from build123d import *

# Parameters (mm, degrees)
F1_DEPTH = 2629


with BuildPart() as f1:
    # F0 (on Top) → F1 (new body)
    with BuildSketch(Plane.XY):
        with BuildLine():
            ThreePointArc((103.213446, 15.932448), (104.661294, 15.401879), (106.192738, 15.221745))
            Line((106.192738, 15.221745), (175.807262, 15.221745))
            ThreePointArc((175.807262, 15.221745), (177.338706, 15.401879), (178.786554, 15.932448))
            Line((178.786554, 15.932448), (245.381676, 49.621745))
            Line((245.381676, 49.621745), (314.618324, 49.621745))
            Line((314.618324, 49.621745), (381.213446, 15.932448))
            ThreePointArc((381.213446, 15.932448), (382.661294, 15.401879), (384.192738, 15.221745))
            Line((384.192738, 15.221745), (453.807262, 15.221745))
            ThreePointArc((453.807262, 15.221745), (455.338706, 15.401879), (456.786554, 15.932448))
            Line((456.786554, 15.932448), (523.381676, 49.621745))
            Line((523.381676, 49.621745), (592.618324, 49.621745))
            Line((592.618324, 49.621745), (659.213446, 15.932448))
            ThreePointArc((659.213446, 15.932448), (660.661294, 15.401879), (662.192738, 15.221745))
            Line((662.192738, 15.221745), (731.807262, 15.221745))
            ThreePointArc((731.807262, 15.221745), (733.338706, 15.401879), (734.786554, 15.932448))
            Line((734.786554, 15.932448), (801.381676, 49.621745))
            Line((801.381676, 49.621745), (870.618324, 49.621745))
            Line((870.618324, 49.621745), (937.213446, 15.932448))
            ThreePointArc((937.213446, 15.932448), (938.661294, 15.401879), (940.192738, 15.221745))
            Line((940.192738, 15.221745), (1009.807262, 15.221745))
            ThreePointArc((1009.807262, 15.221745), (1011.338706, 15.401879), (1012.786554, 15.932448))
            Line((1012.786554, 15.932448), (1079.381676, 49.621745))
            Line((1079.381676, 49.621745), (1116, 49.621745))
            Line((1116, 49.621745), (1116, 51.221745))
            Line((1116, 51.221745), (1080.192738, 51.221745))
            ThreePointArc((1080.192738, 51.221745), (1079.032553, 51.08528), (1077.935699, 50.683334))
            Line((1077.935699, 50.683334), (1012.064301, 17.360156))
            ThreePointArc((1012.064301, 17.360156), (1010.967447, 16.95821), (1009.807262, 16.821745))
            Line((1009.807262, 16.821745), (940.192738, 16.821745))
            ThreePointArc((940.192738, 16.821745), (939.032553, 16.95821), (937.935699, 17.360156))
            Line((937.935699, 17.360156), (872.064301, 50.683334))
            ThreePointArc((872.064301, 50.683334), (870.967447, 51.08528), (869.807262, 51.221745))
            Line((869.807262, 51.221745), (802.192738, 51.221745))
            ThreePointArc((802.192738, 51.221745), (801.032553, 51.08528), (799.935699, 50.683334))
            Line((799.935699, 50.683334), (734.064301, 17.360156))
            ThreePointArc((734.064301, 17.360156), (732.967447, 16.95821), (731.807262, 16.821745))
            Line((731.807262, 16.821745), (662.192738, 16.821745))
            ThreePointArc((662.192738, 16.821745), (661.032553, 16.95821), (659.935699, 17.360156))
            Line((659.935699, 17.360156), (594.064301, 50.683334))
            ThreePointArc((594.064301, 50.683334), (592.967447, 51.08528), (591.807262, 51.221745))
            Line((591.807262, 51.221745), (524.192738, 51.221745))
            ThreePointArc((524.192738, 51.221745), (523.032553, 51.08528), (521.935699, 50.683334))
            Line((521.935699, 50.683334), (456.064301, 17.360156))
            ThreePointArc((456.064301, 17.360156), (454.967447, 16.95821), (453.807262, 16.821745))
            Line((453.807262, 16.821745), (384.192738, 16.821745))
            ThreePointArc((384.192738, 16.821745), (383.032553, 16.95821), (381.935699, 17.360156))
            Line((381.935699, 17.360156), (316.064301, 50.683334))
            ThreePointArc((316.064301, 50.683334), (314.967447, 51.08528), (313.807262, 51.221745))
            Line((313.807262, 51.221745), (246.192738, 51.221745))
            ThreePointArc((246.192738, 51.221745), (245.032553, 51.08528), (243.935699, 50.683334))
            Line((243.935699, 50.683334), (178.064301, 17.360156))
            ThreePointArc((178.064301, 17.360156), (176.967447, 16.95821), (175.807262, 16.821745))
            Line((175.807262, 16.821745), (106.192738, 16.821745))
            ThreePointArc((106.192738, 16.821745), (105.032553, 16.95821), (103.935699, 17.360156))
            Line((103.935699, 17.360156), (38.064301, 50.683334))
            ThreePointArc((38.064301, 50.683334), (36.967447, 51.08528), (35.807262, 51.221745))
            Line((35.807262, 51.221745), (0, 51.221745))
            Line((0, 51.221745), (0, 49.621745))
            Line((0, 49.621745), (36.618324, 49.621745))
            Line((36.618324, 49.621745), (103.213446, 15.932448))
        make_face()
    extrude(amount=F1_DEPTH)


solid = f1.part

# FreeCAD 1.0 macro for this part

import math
import FreeCAD as App
import Part
import Sketcher

V = App.Vector

doc = App.newDocument("Part")
body = doc.addObject("PartDesign::Body", "Body")

# Sketch on XY plane
sketch1 = body.newObject("Sketcher::SketchObject", "Sketch")
sketch1.AttachmentSupport = (doc.getObject("XY_Plane"), [""])
sketch1.MapMode = "FlatFace"
sketch1.addGeometry([
    Part.ArcOfCircle(Part.Circle(V(106.192738, 21.821744, 0), V(0, 0, 1), 6.599999), math.radians(-116.834049), math.radians(-89.999999)),  # 0
    Part.LineSegment(V(106.192738, 15.221745, 0), V(175.807262, 15.221745, 0)),  # 1
    Part.ArcOfCircle(Part.Circle(V(175.807262, 21.821744, 0), V(0, 0, 1), 6.599999), math.radians(-90.000001), math.radians(-63.165951)),  # 2
    Part.LineSegment(V(178.786554, 15.932448, 0), V(245.381676, 49.621745, 0)),  # 3
    Part.LineSegment(V(245.381676, 49.621745, 0), V(314.618324, 49.621745, 0)),  # 4
    Part.LineSegment(V(314.618324, 49.621745, 0), V(381.213446, 15.932448, 0)),  # 5
    Part.ArcOfCircle(Part.Circle(V(384.192738, 21.821744, 0), V(0, 0, 1), 6.599999), math.radians(-116.834049), math.radians(-89.999999)),  # 6
    Part.LineSegment(V(384.192738, 15.221745, 0), V(453.807262, 15.221745, 0)),  # 7
    Part.ArcOfCircle(Part.Circle(V(453.807262, 21.821744, 0), V(0, 0, 1), 6.599999), math.radians(-90.000001), math.radians(-63.165951)),  # 8
    Part.LineSegment(V(456.786554, 15.932448, 0), V(523.381676, 49.621745, 0)),  # 9
    Part.LineSegment(V(523.381676, 49.621745, 0), V(592.618324, 49.621745, 0)),  # 10
    Part.LineSegment(V(592.618324, 49.621745, 0), V(659.213446, 15.932448, 0)),  # 11
    Part.ArcOfCircle(Part.Circle(V(662.192738, 21.821744, 0), V(0, 0, 1), 6.599999), math.radians(-116.834049), math.radians(-89.999999)),  # 12
    Part.LineSegment(V(662.192738, 15.221745, 0), V(731.807262, 15.221745, 0)),  # 13
    Part.ArcOfCircle(Part.Circle(V(731.807262, 21.821744, 0), V(0, 0, 1), 6.599999), math.radians(-90.000001), math.radians(-63.165951)),  # 14
    Part.LineSegment(V(734.786554, 15.932448, 0), V(801.381676, 49.621745, 0)),  # 15
    Part.LineSegment(V(801.381676, 49.621745, 0), V(870.618324, 49.621745, 0)),  # 16
    Part.LineSegment(V(870.618324, 49.621745, 0), V(937.213446, 15.932448, 0)),  # 17
    Part.ArcOfCircle(Part.Circle(V(940.192738, 21.821744, 0), V(0, 0, 1), 6.599999), math.radians(-116.834049), math.radians(-89.999999)),  # 18
    Part.LineSegment(V(940.192738, 15.221745, 0), V(1009.807262, 15.221745, 0)),  # 19
    Part.ArcOfCircle(Part.Circle(V(1009.807262, 21.821744, 0), V(0, 0, 1), 6.599999), math.radians(-90.000001), math.radians(-63.165951)),  # 20
    Part.LineSegment(V(1012.786554, 15.932448, 0), V(1079.381676, 49.621745, 0)),  # 21
    Part.LineSegment(V(1079.381676, 49.621745, 0), V(1116, 49.621745, 0)),  # 22
    Part.LineSegment(V(1116, 49.621745, 0), V(1116, 51.221745, 0)),  # 23
    Part.LineSegment(V(1116, 51.221745, 0), V(1080.192738, 51.221745, 0)),  # 24
    Part.ArcOfCircle(Part.Circle(V(1080.192737, 46.221749, 0), V(0, 0, 1), 4.999996), math.radians(89.999985), math.radians(116.83405)),  # 25
    Part.LineSegment(V(1077.935699, 50.683334, 0), V(1012.064301, 17.360156, 0)),  # 26
    Part.ArcOfCircle(Part.Circle(V(1009.807263, 21.821741, 0), V(0, 0, 1), 4.999996), math.radians(-90.000015), math.radians(-63.16595)),  # 27
    Part.LineSegment(V(1009.807262, 16.821745, 0), V(940.192738, 16.821745, 0)),  # 28
    Part.ArcOfCircle(Part.Circle(V(940.192737, 21.821741, 0), V(0, 0, 1), 4.999996), math.radians(-116.83405), math.radians(-89.999985)),  # 29
    Part.LineSegment(V(937.935699, 17.360156, 0), V(872.064301, 50.683334, 0)),  # 30
    Part.ArcOfCircle(Part.Circle(V(869.807263, 46.221749, 0), V(0, 0, 1), 4.999996), math.radians(63.16595), math.radians(90.000015)),  # 31
    Part.LineSegment(V(869.807262, 51.221745, 0), V(802.192738, 51.221745, 0)),  # 32
    Part.ArcOfCircle(Part.Circle(V(802.192737, 46.221749, 0), V(0, 0, 1), 4.999996), math.radians(89.999985), math.radians(116.83405)),  # 33
    Part.LineSegment(V(799.935699, 50.683334, 0), V(734.064301, 17.360156, 0)),  # 34
    Part.ArcOfCircle(Part.Circle(V(731.807263, 21.821741, 0), V(0, 0, 1), 4.999996), math.radians(-90.000015), math.radians(-63.16595)),  # 35
    Part.LineSegment(V(731.807262, 16.821745, 0), V(662.192738, 16.821745, 0)),  # 36
    Part.ArcOfCircle(Part.Circle(V(662.192737, 21.821741, 0), V(0, 0, 1), 4.999996), math.radians(-116.83405), math.radians(-89.999985)),  # 37
    Part.LineSegment(V(659.935699, 17.360156, 0), V(594.064301, 50.683334, 0)),  # 38
    Part.ArcOfCircle(Part.Circle(V(591.807263, 46.221749, 0), V(0, 0, 1), 4.999996), math.radians(63.16595), math.radians(90.000015)),  # 39
    Part.LineSegment(V(591.807262, 51.221745, 0), V(524.192738, 51.221745, 0)),  # 40
    Part.ArcOfCircle(Part.Circle(V(524.192737, 46.221749, 0), V(0, 0, 1), 4.999996), math.radians(89.999985), math.radians(116.83405)),  # 41
    Part.LineSegment(V(521.935699, 50.683334, 0), V(456.064301, 17.360156, 0)),  # 42
    Part.ArcOfCircle(Part.Circle(V(453.807263, 21.821741, 0), V(0, 0, 1), 4.999996), math.radians(-90.000015), math.radians(-63.16595)),  # 43
    Part.LineSegment(V(453.807262, 16.821745, 0), V(384.192738, 16.821745, 0)),  # 44
    Part.ArcOfCircle(Part.Circle(V(384.192737, 21.821741, 0), V(0, 0, 1), 4.999996), math.radians(-116.83405), math.radians(-89.999985)),  # 45
    Part.LineSegment(V(381.935699, 17.360156, 0), V(316.064301, 50.683334, 0)),  # 46
    Part.ArcOfCircle(Part.Circle(V(313.807263, 46.221749, 0), V(0, 0, 1), 4.999996), math.radians(63.16595), math.radians(90.000015)),  # 47
    Part.LineSegment(V(313.807262, 51.221745, 0), V(246.192738, 51.221745, 0)),  # 48
    Part.ArcOfCircle(Part.Circle(V(246.192737, 46.221749, 0), V(0, 0, 1), 4.999996), math.radians(89.999985), math.radians(116.83405)),  # 49
    Part.LineSegment(V(243.935699, 50.683334, 0), V(178.064301, 17.360156, 0)),  # 50
    Part.ArcOfCircle(Part.Circle(V(175.807263, 21.821741, 0), V(0, 0, 1), 4.999996), math.radians(-90.000015), math.radians(-63.16595)),  # 51
    Part.LineSegment(V(175.807262, 16.821745, 0), V(106.192738, 16.821745, 0)),  # 52
    Part.ArcOfCircle(Part.Circle(V(106.192737, 21.821741, 0), V(0, 0, 1), 4.999996), math.radians(-116.83405), math.radians(-89.999985)),  # 53
    Part.LineSegment(V(103.935699, 17.360156, 0), V(38.064301, 50.683334, 0)),  # 54
    Part.ArcOfCircle(Part.Circle(V(35.807263, 46.221749, 0), V(0, 0, 1), 4.999996), math.radians(63.16595), math.radians(90.000015)),  # 55
    Part.LineSegment(V(35.807262, 51.221745, 0), V(0, 51.221745, 0)),  # 56
    Part.LineSegment(V(0, 51.221745, 0), V(0, 49.621745, 0)),  # 57
    Part.LineSegment(V(0, 49.621745, 0), V(36.618324, 49.621745, 0)),  # 58
    Part.LineSegment(V(36.618324, 49.621745, 0), V(103.213446, 15.932448, 0)),  # 59
], False)
sketch1.addConstraint([
    Sketcher.Constraint("Coincident", 0, 2, 1, 1),
    Sketcher.Constraint("Coincident", 1, 2, 2, 1),
    Sketcher.Constraint("Coincident", 2, 2, 3, 1),
    Sketcher.Constraint("Coincident", 3, 2, 4, 1),
    Sketcher.Constraint("Coincident", 4, 2, 5, 1),
    Sketcher.Constraint("Coincident", 5, 2, 6, 1),
    Sketcher.Constraint("Coincident", 6, 2, 7, 1),
    Sketcher.Constraint("Coincident", 7, 2, 8, 1),
    Sketcher.Constraint("Coincident", 8, 2, 9, 1),
    Sketcher.Constraint("Coincident", 9, 2, 10, 1),
    Sketcher.Constraint("Coincident", 10, 2, 11, 1),
    Sketcher.Constraint("Coincident", 11, 2, 12, 1),
    Sketcher.Constraint("Coincident", 12, 2, 13, 1),
    Sketcher.Constraint("Coincident", 13, 2, 14, 1),
    Sketcher.Constraint("Coincident", 14, 2, 15, 1),
    Sketcher.Constraint("Coincident", 15, 2, 16, 1),
    Sketcher.Constraint("Coincident", 16, 2, 17, 1),
    Sketcher.Constraint("Coincident", 17, 2, 18, 1),
    Sketcher.Constraint("Coincident", 18, 2, 19, 1),
    Sketcher.Constraint("Coincident", 19, 2, 20, 1),
    Sketcher.Constraint("Coincident", 20, 2, 21, 1),
    Sketcher.Constraint("Coincident", 21, 2, 22, 1),
    Sketcher.Constraint("Coincident", 22, 2, 23, 1),
    Sketcher.Constraint("Coincident", 23, 2, 24, 1),
    Sketcher.Constraint("Coincident", 24, 2, 25, 1),
    Sketcher.Constraint("Coincident", 25, 2, 26, 1),
    Sketcher.Constraint("Coincident", 26, 2, 27, 2),
    Sketcher.Constraint("Coincident", 27, 1, 28, 1),
    Sketcher.Constraint("Coincident", 28, 2, 29, 2),
    Sketcher.Constraint("Coincident", 29, 1, 30, 1),
    Sketcher.Constraint("Coincident", 30, 2, 31, 1),
    Sketcher.Constraint("Coincident", 31, 2, 32, 1),
    Sketcher.Constraint("Coincident", 32, 2, 33, 1),
    Sketcher.Constraint("Coincident", 33, 2, 34, 1),
    Sketcher.Constraint("Coincident", 34, 2, 35, 2),
    Sketcher.Constraint("Coincident", 35, 1, 36, 1),
    Sketcher.Constraint("Coincident", 36, 2, 37, 2),
    Sketcher.Constraint("Coincident", 37, 1, 38, 1),
    Sketcher.Constraint("Coincident", 38, 2, 39, 1),
    Sketcher.Constraint("Coincident", 39, 2, 40, 1),
    Sketcher.Constraint("Coincident", 40, 2, 41, 1),
    Sketcher.Constraint("Coincident", 41, 2, 42, 1),
    Sketcher.Constraint("Coincident", 42, 2, 43, 2),
    Sketcher.Constraint("Coincident", 43, 1, 44, 1),
    Sketcher.Constraint("Coincident", 44, 2, 45, 2),
    Sketcher.Constraint("Coincident", 45, 1, 46, 1),
    Sketcher.Constraint("Coincident", 46, 2, 47, 1),
    Sketcher.Constraint("Coincident", 47, 2, 48, 1),
    Sketcher.Constraint("Coincident", 48, 2, 49, 1),
    Sketcher.Constraint("Coincident", 49, 2, 50, 1),
    Sketcher.Constraint("Coincident", 50, 2, 51, 2),
    Sketcher.Constraint("Coincident", 51, 1, 52, 1),
    Sketcher.Constraint("Coincident", 52, 2, 53, 2),
    Sketcher.Constraint("Coincident", 53, 1, 54, 1),
    Sketcher.Constraint("Coincident", 54, 2, 55, 1),
    Sketcher.Constraint("Coincident", 55, 2, 56, 1),
    Sketcher.Constraint("Coincident", 56, 2, 57, 1),
    Sketcher.Constraint("Coincident", 57, 2, 58, 1),
    Sketcher.Constraint("Coincident", 58, 2, 59, 1),
    Sketcher.Constraint("Coincident", 59, 2, 0, 1),
    Sketcher.Constraint("Horizontal", 1),
    Sketcher.Constraint("Horizontal", 4),
    Sketcher.Constraint("Horizontal", 7),
    Sketcher.Constraint("Horizontal", 10),
    Sketcher.Constraint("Horizontal", 13),
    Sketcher.Constraint("Horizontal", 16),
    Sketcher.Constraint("Horizontal", 19),
    Sketcher.Constraint("Horizontal", 22),
    Sketcher.Constraint("Vertical", 23),
    Sketcher.Constraint("Horizontal", 24),
    Sketcher.Constraint("Horizontal", 28),
    Sketcher.Constraint("Horizontal", 32),
    Sketcher.Constraint("Horizontal", 36),
    Sketcher.Constraint("Horizontal", 40),
    Sketcher.Constraint("Horizontal", 44),
    Sketcher.Constraint("Horizontal", 48),
    Sketcher.Constraint("Horizontal", 52),
    Sketcher.Constraint("Horizontal", 56),
    Sketcher.Constraint("Vertical", 57),
    Sketcher.Constraint("Horizontal", 58),
    Sketcher.Constraint("Coincident", 27, 3, 20, 3),
    Sketcher.Constraint("Coincident", 29, 3, 18, 3),
    Sketcher.Constraint("Coincident", 35, 3, 14, 3),
    Sketcher.Constraint("Coincident", 37, 3, 12, 3),
    Sketcher.Constraint("Coincident", 43, 3, 8, 3),
    Sketcher.Constraint("Coincident", 45, 3, 6, 3),
    Sketcher.Constraint("Coincident", 51, 3, 2, 3),
    Sketcher.Constraint("Coincident", 53, 3, 0, 3),
    Sketcher.Constraint("PointOnObject", 56, 2, -2),
    Sketcher.Constraint("Radius", 0, 6.599999),
    Sketcher.Constraint("Radius", 2, 6.599999),
    Sketcher.Constraint("Radius", 6, 6.599999),
    Sketcher.Constraint("Radius", 8, 6.599999),
    Sketcher.Constraint("Radius", 12, 6.599999),
    Sketcher.Constraint("Radius", 14, 6.599999),
    Sketcher.Constraint("Radius", 18, 6.599999),
    Sketcher.Constraint("Radius", 20, 6.599999),
    Sketcher.Constraint("DistanceY", 23, 1, 23, 2, 1.6),
    Sketcher.Constraint("DistanceY", 57, 2, 57, 1, 1.6),
    Sketcher.Constraint("DistanceX", -1, 1, 22, 2, 1116.0),
    Sketcher.Constraint("Radius", 25, 4.999996),
    Sketcher.Constraint("Radius", 27, 4.999996),
    Sketcher.Constraint("Radius", 31, 4.999996),
    Sketcher.Constraint("Radius", 33, 4.999996),
    Sketcher.Constraint("Radius", 35, 4.999996),
    Sketcher.Constraint("Radius", 39, 4.999996),
    Sketcher.Constraint("Radius", 41, 4.999996),
    Sketcher.Constraint("Radius", 43, 4.999996),
    Sketcher.Constraint("Radius", 47, 4.999996),
    Sketcher.Constraint("Radius", 49, 4.999996),
    Sketcher.Constraint("Radius", 51, 4.999996),
    Sketcher.Constraint("Radius", 55, 4.999996),
    Sketcher.Constraint("DistanceX", 10, 1, 10, 2, 69.236648),
    Sketcher.Constraint("DistanceX", 16, 1, 16, 2, 69.236648),
    Sketcher.Constraint("DistanceX", -1, 1, 25, 2, 1077.935699),
    Sketcher.Constraint("DistanceX", -1, 1, 26, 2, 1012.064301),
    Sketcher.Constraint("DistanceX", -1, 1, 29, 1, 937.935699),
    Sketcher.Constraint("DistanceX", -1, 1, 30, 2, 872.064301),
    Sketcher.Constraint("DistanceX", -1, 1, 33, 2, 799.935699),
    Sketcher.Constraint("DistanceX", -1, 1, 34, 2, 734.064301),
    Sketcher.Constraint("DistanceX", -1, 1, 37, 1, 659.935699),
    Sketcher.Constraint("DistanceX", -1, 1, 38, 2, 594.064301),
    Sketcher.Constraint("DistanceX", -1, 1, 41, 2, 521.935699),
    Sketcher.Constraint("DistanceX", -1, 1, 42, 2, 456.064301),
    Sketcher.Constraint("DistanceX", -1, 1, 45, 1, 381.935699),
    Sketcher.Constraint("DistanceX", -1, 1, 46, 2, 316.064301),
    Sketcher.Constraint("DistanceX", -1, 1, 49, 2, 243.935699),
    Sketcher.Constraint("DistanceX", -1, 1, 50, 2, 178.064301),
    Sketcher.Constraint("DistanceX", -1, 1, 53, 1, 103.935699),
    Sketcher.Constraint("DistanceX", -1, 1, 54, 2, 38.064301),
    Sketcher.Constraint("Distance", 26, 73.820561),
    Sketcher.Constraint("Distance", 30, 73.820561),
    Sketcher.Constraint("Distance", 34, 73.820561),
    Sketcher.Constraint("Distance", 38, 73.820561),
    Sketcher.Constraint("Distance", 42, 73.820561),
    Sketcher.Constraint("Distance", 46, 73.820561),
    Sketcher.Constraint("Distance", 50, 73.820561),
    Sketcher.Constraint("Distance", 54, 73.820561),
    Sketcher.Constraint("DistanceX", 1, 1, 1, 2, 69.614524),
    Sketcher.Constraint("DistanceX", 4, 1, 4, 2, 69.236648),
    Sketcher.Constraint("DistanceX", 7, 1, 7, 2, 69.614524),
    Sketcher.Constraint("DistanceX", 13, 1, 13, 2, 69.614524),
    Sketcher.Constraint("DistanceX", 19, 1, 19, 2, 69.614524),
    Sketcher.Constraint("DistanceX", 22, 1, 22, 2, 36.618324),
    Sketcher.Constraint("DistanceX", 24, 2, 24, 1, 35.807262),
    Sketcher.Constraint("DistanceX", 28, 2, 28, 1, 69.614524),
    Sketcher.Constraint("DistanceX", 32, 2, 32, 1, 67.614524),
    Sketcher.Constraint("DistanceX", 36, 2, 36, 1, 69.614524),
    Sketcher.Constraint("DistanceX", 40, 2, 40, 1, 67.614524),
    Sketcher.Constraint("DistanceX", 44, 2, 44, 1, 69.614524),
    Sketcher.Constraint("DistanceX", 48, 2, 48, 1, 67.614524),
    Sketcher.Constraint("DistanceX", 52, 2, 52, 1, 69.614524),
    Sketcher.Constraint("DistanceX", 56, 2, 56, 1, 35.807262),
    Sketcher.Constraint("DistanceX", 58, 1, 58, 2, 36.618324),
    Sketcher.Constraint("DistanceY", -1, 1, 25, 3, 46.221749),
    Sketcher.Constraint("DistanceY", -1, 1, 27, 3, 21.821741),
    Sketcher.Constraint("DistanceY", -1, 1, 31, 3, 46.221749),
    Sketcher.Constraint("DistanceY", -1, 1, 35, 3, 21.821741),
    Sketcher.Constraint("DistanceY", -1, 1, 39, 3, 46.221749),
    Sketcher.Constraint("DistanceY", -1, 1, 43, 3, 21.821741),
    Sketcher.Constraint("DistanceY", -1, 1, 47, 3, 46.221749),
    Sketcher.Constraint("DistanceY", -1, 1, 51, 3, 21.821741),
    Sketcher.Constraint("DistanceY", -1, 1, 55, 3, 46.221749),
    Sketcher.Constraint("DistanceX", -1, 1, 0, 2, 106.192738),
    Sketcher.Constraint("DistanceY", -1, 1, 5, 2, 15.932448),
    Sketcher.Constraint("DistanceX", -1, 1, 6, 2, 384.192738),
    Sketcher.Constraint("DistanceY", -1, 1, 11, 2, 15.932448),
    Sketcher.Constraint("DistanceX", -1, 1, 12, 2, 662.192738),
    Sketcher.Constraint("DistanceY", -1, 1, 17, 2, 15.932448),
    Sketcher.Constraint("DistanceX", -1, 1, 18, 2, 940.192738),
    Sketcher.Constraint("DistanceX", -1, 1, 27, 1, 1009.807262),
    Sketcher.Constraint("DistanceX", -1, 1, 31, 2, 869.807262),
    Sketcher.Constraint("DistanceX", -1, 1, 35, 1, 731.807262),
    Sketcher.Constraint("DistanceX", -1, 1, 39, 2, 591.807262),
    Sketcher.Constraint("DistanceX", -1, 1, 43, 1, 453.807262),
    Sketcher.Constraint("DistanceX", -1, 1, 47, 2, 313.807262),
    Sketcher.Constraint("DistanceX", -1, 1, 51, 1, 175.807262),
    Sketcher.Constraint("DistanceY", -1, 1, 59, 2, 15.932448),
    Sketcher.Constraint("Distance", 3, 74.631622),
    Sketcher.Constraint("Distance", 5, 74.631622),
    Sketcher.Constraint("Distance", 9, 74.631622),
    Sketcher.Constraint("Distance", 11, 74.631622),
    Sketcher.Constraint("Distance", 15, 74.631622),
    Sketcher.Constraint("Distance", 17, 74.631622),
    Sketcher.Constraint("Distance", 21, 74.631622),
    Sketcher.Constraint("Distance", 59, 74.631622),
    Sketcher.Constraint("DistanceX", -1, 1, 2, 3, 175.807262),
    Sketcher.Constraint("DistanceX", -1, 1, 6, 3, 384.192738),
    Sketcher.Constraint("DistanceX", -1, 1, 8, 3, 453.807262),
    Sketcher.Constraint("DistanceX", -1, 1, 12, 3, 662.192738),
    Sketcher.Constraint("DistanceX", -1, 1, 14, 3, 731.807262),
    Sketcher.Constraint("DistanceX", -1, 1, 18, 3, 940.192738),
    Sketcher.Constraint("DistanceX", -1, 1, 20, 3, 1009.807262),
    Sketcher.Constraint("DistanceX", -1, 1, 2, 2, 178.786554),
    Sketcher.Constraint("DistanceX", -1, 1, 8, 2, 456.786554),
    Sketcher.Constraint("DistanceX", -1, 1, 14, 2, 734.786554),
])
pad1 = body.newObject("PartDesign::Pad", "Pad")
pad1.Profile = sketch1
pad1.Length = 2629

doc.recompute()
